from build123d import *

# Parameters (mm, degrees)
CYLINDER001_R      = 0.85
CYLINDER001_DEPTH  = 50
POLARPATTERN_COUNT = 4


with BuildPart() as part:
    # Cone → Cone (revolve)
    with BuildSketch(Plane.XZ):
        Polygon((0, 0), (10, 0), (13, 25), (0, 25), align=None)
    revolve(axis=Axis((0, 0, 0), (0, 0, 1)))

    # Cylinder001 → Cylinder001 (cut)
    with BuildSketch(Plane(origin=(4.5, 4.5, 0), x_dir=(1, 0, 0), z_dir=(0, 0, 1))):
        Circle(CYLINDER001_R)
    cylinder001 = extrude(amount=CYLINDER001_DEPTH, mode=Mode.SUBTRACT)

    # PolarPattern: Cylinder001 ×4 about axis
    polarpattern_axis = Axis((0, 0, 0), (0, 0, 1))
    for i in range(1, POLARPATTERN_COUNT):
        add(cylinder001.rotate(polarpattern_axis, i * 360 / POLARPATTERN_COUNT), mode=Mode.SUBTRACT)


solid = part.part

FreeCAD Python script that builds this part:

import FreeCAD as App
import Part
import Sketcher

V = App.Vector
Q = App.Units.Quantity

doc = App.newDocument("Part")
params = doc.addObject("Spreadsheet::Sheet", "Params")
for row, (alias, value) in enumerate([
    ("sketch1_width", "10 mm"),
    ("sketch1_width2", "13 mm"),
    ("sketch1_height", "25 mm"),
    ("revolution_angle", "360 deg"),
    ("sketch2_diameter", "1.7 mm"),
    ("pocket1_length", "50 mm"),
], start=1):
    params.set(f"A{row}", alias)
    params.set(f"B{row}", "=" + value)
    params.setAlias(f"B{row}", alias)

body = doc.addObject("PartDesign::Body", "Body")

# Sketch on XZ plane
sketch1 = body.newObject("Sketcher::SketchObject", "Sketch")
sketch1.AttachmentSupport = (doc.getObject("XZ_Plane"), [""])
sketch1.MapMode = "FlatFace"
sketch1.addGeometry([
    Part.LineSegment(V(0, 0, 0), V(10, 0, 0)),
    Part.LineSegment(V(10, 0, 0), V(13, 25, 0)),
    Part.LineSegment(V(13, 25, 0), V(0, 25, 0)),
    Part.LineSegment(V(0, 25, 0), V(0, 0, 0)),
], False)
sketch1.addConstraint([
    Sketcher.Constraint("Coincident", 0, 2, 1, 1),
    Sketcher.Constraint("Coincident", 1, 2, 2, 1),
    Sketcher.Constraint("Coincident", 2, 2, 3, 1),
    Sketcher.Constraint("Coincident", 3, 2, 0, 1),
    Sketcher.Constraint("Horizontal", 0),
    Sketcher.Constraint("Horizontal", 2),
    Sketcher.Constraint("Vertical", 3),
    Sketcher.Constraint("Coincident", 3, 2, -1, 1),
    Sketcher.Constraint("DistanceX", 0, 1, 0, 2, Q("10 mm")),
    Sketcher.Constraint("DistanceX", 2, 2, 2, 1, Q("13 mm")),
    Sketcher.Constraint("DistanceY", 3, 2, 3, 1, Q("25 mm")),
])
sketch1.setExpression("Constraints[8]", "Params.sketch1_width")
sketch1.setExpression("Constraints[9]", "Params.sketch1_width2")
sketch1.setExpression("Constraints[10]", "Params.sketch1_height")
revolution = body.newObject("PartDesign::Revolution", "Revolution")
revolution.Profile = sketch1
revolution.ReferenceAxis = (sketch1, ["V_Axis"])
revolution.setExpression("Angle", "Params.revolution_angle")

# Sketch on XY plane
sketch2 = body.newObject("Sketcher::SketchObject", "Sketch001")
sketch2.AttachmentSupport = (doc.getObject("XY_Plane"), [""])
sketch2.MapMode = "FlatFace"
sketch2.addGeometry(Part.Circle(V(4.5, 4.5, 0), V(0, 0, 1), 0.8), False)
sketch2.addConstraint([
    Sketcher.Constraint("Diameter", 0, Q("1.7 mm")),
    Sketcher.Constraint("DistanceX", -1, 1, 0, 3, Q("4.5 mm")),
    Sketcher.Constraint("DistanceY", -1, 1, 0, 3, Q("4.5 mm")),
])
sketch2.setExpression("Constraints[0]", "Params.sketch2_diameter")
pocket1 = body.newObject("PartDesign::Pocket", "Pocket")
pocket1.Profile = sketch2
pocket1.setExpression("Length", "Params.pocket1_length")
pocket1.Reversed = True
doc.recompute()

polarpattern = body.newObject("PartDesign::PolarPattern", "PolarPattern")
polarpattern.Originals = [pocket1]
polarpattern.Axis = (doc.getObject("Z_Axis"), [""])
polarpattern.Angle = 360
polarpattern.Occurrences = 4
body.Tip = polarpattern

doc.recompute()
